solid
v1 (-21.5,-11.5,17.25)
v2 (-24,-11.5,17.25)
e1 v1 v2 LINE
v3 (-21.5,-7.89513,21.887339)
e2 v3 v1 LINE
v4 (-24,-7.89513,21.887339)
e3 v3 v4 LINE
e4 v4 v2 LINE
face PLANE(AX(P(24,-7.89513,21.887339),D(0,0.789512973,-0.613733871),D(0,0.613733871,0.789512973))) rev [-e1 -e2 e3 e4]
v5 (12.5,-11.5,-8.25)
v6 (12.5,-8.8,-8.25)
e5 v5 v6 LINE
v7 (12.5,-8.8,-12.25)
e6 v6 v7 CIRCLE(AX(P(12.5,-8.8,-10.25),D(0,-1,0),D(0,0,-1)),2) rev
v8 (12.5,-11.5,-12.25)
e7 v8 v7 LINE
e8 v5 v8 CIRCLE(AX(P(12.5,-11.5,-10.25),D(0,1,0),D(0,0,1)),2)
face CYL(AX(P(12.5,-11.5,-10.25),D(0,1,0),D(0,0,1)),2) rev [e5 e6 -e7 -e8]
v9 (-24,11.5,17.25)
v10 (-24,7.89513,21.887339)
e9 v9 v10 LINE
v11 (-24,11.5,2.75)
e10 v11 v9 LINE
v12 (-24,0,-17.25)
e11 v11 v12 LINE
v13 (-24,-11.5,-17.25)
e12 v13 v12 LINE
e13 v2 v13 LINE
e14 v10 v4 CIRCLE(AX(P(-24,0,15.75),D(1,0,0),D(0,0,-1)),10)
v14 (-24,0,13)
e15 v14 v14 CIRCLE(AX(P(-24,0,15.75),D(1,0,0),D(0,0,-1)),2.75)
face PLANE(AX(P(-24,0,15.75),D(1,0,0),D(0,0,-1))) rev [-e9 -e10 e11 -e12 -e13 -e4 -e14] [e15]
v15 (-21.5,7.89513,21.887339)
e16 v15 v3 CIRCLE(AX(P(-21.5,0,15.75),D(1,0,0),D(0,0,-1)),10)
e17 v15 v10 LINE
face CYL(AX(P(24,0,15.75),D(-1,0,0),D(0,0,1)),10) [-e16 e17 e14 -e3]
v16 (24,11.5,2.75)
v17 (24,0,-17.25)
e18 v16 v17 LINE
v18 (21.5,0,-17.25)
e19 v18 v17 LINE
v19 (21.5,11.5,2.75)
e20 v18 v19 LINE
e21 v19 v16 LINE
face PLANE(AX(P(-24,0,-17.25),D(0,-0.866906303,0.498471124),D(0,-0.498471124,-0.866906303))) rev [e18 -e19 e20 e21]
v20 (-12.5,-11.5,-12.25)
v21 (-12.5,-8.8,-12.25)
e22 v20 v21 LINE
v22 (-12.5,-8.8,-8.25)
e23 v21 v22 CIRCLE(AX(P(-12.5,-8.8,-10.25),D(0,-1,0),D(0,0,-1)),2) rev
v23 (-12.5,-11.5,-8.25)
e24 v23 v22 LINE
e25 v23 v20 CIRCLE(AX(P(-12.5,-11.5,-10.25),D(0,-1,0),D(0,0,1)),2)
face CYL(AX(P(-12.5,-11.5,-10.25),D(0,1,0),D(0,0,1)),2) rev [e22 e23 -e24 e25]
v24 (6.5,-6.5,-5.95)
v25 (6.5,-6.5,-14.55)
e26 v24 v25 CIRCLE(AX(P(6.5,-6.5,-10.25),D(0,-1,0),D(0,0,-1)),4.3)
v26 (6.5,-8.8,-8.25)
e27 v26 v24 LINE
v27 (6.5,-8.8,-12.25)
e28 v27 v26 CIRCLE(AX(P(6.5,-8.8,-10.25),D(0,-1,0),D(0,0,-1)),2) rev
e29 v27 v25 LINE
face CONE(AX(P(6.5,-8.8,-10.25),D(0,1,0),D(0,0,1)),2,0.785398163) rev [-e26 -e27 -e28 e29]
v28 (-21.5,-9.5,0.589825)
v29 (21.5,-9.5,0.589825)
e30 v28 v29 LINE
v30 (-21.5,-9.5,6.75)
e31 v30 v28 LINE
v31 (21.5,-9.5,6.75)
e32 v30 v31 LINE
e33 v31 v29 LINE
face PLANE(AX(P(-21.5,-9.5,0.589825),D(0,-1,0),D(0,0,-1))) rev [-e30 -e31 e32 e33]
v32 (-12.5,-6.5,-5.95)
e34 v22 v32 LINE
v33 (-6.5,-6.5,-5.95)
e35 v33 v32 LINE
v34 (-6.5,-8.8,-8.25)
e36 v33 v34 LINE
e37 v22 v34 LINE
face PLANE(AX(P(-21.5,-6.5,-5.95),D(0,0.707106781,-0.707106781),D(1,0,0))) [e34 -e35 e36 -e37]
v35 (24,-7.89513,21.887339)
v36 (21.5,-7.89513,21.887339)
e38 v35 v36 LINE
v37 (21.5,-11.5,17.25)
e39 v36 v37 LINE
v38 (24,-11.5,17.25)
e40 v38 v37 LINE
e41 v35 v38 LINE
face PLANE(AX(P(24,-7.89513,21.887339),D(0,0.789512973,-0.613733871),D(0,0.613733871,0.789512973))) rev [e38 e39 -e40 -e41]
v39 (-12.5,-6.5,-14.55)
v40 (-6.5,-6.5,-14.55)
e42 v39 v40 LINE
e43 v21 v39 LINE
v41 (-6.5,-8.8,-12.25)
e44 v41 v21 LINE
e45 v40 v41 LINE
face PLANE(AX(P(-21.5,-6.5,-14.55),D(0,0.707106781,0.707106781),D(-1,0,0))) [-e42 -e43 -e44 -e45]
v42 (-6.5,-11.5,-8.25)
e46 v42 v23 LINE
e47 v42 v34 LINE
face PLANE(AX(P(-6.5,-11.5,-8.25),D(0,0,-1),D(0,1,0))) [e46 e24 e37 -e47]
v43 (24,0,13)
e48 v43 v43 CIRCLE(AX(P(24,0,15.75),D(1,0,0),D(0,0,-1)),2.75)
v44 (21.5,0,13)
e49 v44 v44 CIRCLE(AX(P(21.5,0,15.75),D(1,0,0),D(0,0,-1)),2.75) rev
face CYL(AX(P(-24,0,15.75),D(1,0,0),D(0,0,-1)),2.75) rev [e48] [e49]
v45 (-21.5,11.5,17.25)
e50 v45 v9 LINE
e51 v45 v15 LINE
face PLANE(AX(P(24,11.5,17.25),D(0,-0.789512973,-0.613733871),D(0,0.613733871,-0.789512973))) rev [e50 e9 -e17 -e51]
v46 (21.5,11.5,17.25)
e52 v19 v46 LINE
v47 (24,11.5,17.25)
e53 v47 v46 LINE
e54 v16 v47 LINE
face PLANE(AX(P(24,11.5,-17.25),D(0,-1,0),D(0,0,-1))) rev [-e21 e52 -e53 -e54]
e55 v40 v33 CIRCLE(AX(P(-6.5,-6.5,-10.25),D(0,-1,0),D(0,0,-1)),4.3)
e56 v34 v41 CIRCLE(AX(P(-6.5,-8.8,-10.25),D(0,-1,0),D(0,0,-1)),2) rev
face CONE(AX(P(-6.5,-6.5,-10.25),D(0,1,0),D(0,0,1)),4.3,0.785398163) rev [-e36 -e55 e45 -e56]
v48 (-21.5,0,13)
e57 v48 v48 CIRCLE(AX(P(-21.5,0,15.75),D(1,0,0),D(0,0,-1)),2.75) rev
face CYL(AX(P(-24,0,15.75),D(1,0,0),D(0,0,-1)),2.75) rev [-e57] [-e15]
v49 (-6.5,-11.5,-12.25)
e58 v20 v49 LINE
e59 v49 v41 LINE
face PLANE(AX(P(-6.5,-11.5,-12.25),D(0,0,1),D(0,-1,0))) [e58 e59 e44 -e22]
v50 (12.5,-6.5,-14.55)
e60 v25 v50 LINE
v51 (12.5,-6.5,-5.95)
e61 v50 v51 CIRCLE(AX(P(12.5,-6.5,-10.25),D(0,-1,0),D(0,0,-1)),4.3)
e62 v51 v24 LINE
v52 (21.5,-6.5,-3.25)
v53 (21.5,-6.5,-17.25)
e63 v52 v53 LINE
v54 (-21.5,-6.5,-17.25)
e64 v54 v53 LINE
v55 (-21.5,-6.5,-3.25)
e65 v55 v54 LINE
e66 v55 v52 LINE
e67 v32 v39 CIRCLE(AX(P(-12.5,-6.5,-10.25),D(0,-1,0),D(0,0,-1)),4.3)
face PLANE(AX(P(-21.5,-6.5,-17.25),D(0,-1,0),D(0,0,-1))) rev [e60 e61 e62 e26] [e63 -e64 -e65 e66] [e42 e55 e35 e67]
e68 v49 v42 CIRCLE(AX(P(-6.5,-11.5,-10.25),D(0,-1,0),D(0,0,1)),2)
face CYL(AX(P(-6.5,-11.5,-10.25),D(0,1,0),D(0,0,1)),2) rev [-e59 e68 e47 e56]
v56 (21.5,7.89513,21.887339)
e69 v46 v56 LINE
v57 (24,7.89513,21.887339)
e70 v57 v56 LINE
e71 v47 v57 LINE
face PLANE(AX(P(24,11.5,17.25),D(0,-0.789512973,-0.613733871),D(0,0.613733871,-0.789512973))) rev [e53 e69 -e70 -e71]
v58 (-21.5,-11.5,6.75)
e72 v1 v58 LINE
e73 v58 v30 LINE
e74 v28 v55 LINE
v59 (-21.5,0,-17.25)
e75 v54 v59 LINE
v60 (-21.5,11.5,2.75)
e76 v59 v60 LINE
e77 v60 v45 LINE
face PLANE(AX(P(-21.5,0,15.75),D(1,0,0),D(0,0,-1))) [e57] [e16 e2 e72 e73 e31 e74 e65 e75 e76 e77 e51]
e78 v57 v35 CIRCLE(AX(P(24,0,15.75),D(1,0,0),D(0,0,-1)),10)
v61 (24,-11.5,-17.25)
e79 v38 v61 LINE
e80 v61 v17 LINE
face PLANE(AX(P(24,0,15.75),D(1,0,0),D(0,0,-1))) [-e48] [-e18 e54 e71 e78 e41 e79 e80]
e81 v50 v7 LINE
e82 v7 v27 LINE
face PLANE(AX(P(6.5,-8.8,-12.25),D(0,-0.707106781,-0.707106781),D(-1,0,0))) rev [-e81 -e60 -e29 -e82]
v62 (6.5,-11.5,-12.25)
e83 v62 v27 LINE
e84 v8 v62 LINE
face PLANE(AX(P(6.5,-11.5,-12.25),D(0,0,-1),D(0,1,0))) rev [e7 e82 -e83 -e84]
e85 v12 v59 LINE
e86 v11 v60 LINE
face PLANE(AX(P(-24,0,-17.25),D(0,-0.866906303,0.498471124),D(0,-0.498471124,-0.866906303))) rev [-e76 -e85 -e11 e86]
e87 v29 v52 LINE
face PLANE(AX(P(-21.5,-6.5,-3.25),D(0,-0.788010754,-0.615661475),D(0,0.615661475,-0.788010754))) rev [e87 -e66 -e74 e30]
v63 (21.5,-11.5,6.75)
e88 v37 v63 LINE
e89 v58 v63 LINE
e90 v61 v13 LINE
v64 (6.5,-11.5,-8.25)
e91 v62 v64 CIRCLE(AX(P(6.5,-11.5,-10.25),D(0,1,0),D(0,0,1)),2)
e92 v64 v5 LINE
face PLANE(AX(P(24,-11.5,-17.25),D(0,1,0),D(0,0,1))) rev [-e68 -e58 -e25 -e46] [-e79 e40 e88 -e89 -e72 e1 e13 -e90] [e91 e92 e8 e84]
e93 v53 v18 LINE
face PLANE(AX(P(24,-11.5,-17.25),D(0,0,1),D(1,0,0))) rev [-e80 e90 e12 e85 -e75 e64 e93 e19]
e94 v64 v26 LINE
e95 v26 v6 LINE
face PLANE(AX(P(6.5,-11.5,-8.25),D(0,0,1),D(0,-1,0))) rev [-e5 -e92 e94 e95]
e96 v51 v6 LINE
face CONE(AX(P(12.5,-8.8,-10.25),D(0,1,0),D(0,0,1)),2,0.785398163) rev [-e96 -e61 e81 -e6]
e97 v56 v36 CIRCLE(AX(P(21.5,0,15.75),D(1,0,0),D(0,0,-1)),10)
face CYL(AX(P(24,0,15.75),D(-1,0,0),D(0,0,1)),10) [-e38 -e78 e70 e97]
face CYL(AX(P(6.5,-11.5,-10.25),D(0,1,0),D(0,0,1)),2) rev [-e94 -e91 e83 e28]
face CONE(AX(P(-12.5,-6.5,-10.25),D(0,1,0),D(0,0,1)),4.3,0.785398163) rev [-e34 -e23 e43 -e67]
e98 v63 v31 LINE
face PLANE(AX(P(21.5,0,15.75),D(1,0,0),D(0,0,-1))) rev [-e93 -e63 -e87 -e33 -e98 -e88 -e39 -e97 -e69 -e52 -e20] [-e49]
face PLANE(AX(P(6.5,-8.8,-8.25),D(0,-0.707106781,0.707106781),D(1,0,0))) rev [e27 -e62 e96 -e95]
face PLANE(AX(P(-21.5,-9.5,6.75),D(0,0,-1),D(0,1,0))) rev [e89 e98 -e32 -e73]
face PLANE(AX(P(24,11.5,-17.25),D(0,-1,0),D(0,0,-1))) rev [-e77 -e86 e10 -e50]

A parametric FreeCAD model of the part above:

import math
import FreeCAD as App
import Part
import Sketcher

V = App.Vector
Q = App.Units.Quantity


def edges_at(feature, points):
    """Names of the edges that pass closest to the given points."""
    edges = feature.Shape.Edges
    near = lambda p: min(range(len(edges)), key=lambda i: edges[i].distToShape(Part.Vertex(*p))[0])
    return sorted({f"Edge{near(p) + 1}" for p in points})

doc = App.newDocument("Part")
params = doc.addObject("Spreadsheet::Sheet", "Params")
for row, (alias, value) in enumerate([
    ("sketch1_radius", "10 mm"),
    ("sketch1_width", "23 mm"),
    ("sketch1_height", "34.5 mm"),
    ("pad1_length", "48 mm"),
    ("sketch2_diameter", "5.5 mm"),
    ("sketch2_height", "20 mm"),
    ("sketch2_width", "11.5 mm"),
    ("pocket1_length", "48 mm"),
    ("sketch3_radius", "10 mm"),
    ("sketch3_width", "2 mm"),
    ("sketch3_height", "14 mm"),
    ("sketch3_width2", "6.5 mm"),
    ("sketch3_height2", "14.5 mm"),
    ("pocket2_length", "43 mm"),
    ("sketch4_radius", "2 mm"),
    ("sketch4_width", "6 mm"),
    ("chamfer_size", "2.3 mm"),
    ("chamfer2_size", "2.3 mm"),
], start=1):
    params.set(f"A{row}", alias)
    params.set(f"B{row}", "=" + value)
    params.setAlias(f"B{row}", alias)

body = doc.addObject("PartDesign::Body", "Body")

sketch1 = doc.addObject("Sketcher::SketchObject", "Sketch")
body.addObject(sketch1)
sketch1.AttachmentSupport = (doc.YZ_Plane, [""])
sketch1.MapMode = "FlatFace"
sketch1.addGeometry(Part.LineSegment(V(12, 17, 0), V(8, 22, 0)), False)
sketch1.addGeometry(Part.ArcOfCircle(Part.Circle(V(0, 16, 0), V(0, 0, 1), 10), math.radians(38), math.radians(142)), False)
sketch1.addGeometry(Part.LineSegment(V(-8, 22, 0), V(-12, 17, 0)), False)
sketch1.addGeometry(Part.LineSegment(V(-12, 17, 0), V(-12, -17, 0)), False)
sketch1.addGeometry(Part.LineSegment(V(-12, -17, 0), V(12, -17, 0)), False)
sketch1.addGeometry(Part.LineSegment(V(12, -17, 0), V(12, 17, 0)), False)
sketch1.addConstraint(Sketcher.Constraint("Tangent", 0, 2, 1, 1))
sketch1.addConstraint(Sketcher.Constraint("Tangent", 1, 2, 2, 1))
sketch1.addConstraint(Sketcher.Constraint("Coincident", 2, 2, 3, 1))
sketch1.addConstraint(Sketcher.Constraint("Coincident", 3, 2, 4, 1))
sketch1.addConstraint(Sketcher.Constraint("Coincident", 4, 2, 5, 1))
sketch1.addConstraint(Sketcher.Constraint("Coincident", 5, 2, 0, 1))
sketch1.addConstraint(Sketcher.Constraint("Vertical", 3))
sketch1.addConstraint(Sketcher.Constraint("Horizontal", 4))
sketch1.addConstraint(Sketcher.Constraint("Vertical", 5))
sketch1.addConstraint(Sketcher.Constraint("Symmetric", 2, 2, 4, 2, -1, 1))
sketch1.addConstraint(Sketcher.Constraint("Symmetric", 0, 2, 1, 2, -2))
sketch1.addConstraint(Sketcher.Constraint("Radius", 1, Q("10 mm")))
sketch1.addConstraint(Sketcher.Constraint("DistanceX", 4, 1, 4, 2, Q("23 mm")))
sketch1.addConstraint(Sketcher.Constraint("DistanceY", 3, 2, 3, 1, Q("34.5 mm")))
sketch1.addConstraint(Sketcher.Constraint("DistanceY", 3, 2, 1, 3, Q("33 mm")))
sketch1.setExpression("Constraints[11]", "Params.sketch1_radius")
sketch1.setExpression("Constraints[12]", "Params.sketch1_width")
sketch1.setExpression("Constraints[13]", "Params.sketch1_height")
pad1 = doc.addObject("PartDesign::Pad", "Pad")
body.addObject(pad1)
pad1.Profile = sketch1
pad1.setExpression("Length", "Params.pad1_length")
pad1.Midplane = True

sketch2 = doc.addObject("Sketcher::SketchObject", "Sketch001")
body.addObject(sketch2)
sketch2.AttachmentSupport = (doc.YZ_Plane, [""])
sketch2.MapMode = "FlatFace"
sketch2.AttachmentOffset = App.Placement(V(0, 0, 24), App.Rotation())
sketch2.addGeometry(Part.Circle(V(0, 15.8, 0), V(0, 0, 1), 2.8), False)
sketch2.addGeometry(Part.LineSegment(V(11.5, 2.8, 0), V(0, -17.2, 0)), False)
sketch2.addGeometry(Part.LineSegment(V(0, -17.2, 0), V(11.5, -17.2, 0)), False)
sketch2.addGeometry(Part.LineSegment(V(11.5, -17.2, 0), V(11.5, 2.8, 0)), False)
sketch2.addConstraint(Sketcher.Constraint("Coincident", 1, 2, 2, 1))
sketch2.addConstraint(Sketcher.Constraint("Coincident", 2, 2, 3, 1))
sketch2.addConstraint(Sketcher.Constraint("Coincident", 3, 2, 1, 1))
sketch2.addConstraint(Sketcher.Constraint("Horizontal", 2))
sketch2.addConstraint(Sketcher.Constraint("Vertical", 3))
sketch2.addConstraint(Sketcher.Constraint("PointOnObject", 0, 3, -2))
sketch2.addConstraint(Sketcher.Constraint("PointOnObject", 1, 2, -2))
sketch2.addConstraint(Sketcher.Constraint("Diameter", 0, Q("5.5 mm")))
sketch2.addConstraint(Sketcher.Constraint("DistanceY", 3, 1, 3, 2, Q("20 mm")))
sketch2.addConstraint(Sketcher.Constraint("DistanceX", 2, 1, 2, 2, Q("11.5 mm")))
sketch2.addConstraint(Sketcher.Constraint("DistanceY", 1, 2, 0, 3, Q("33 mm")))
sketch2.addConstraint(Sketcher.Constraint("DistanceY", -1, 1, 0, 3, Q("15.75 mm")))
sketch2.setExpression("Constraints[7]", "Params.sketch2_diameter")
sketch2.setExpression("Constraints[8]", "Params.sketch2_height")
sketch2.setExpression("Constraints[9]", "Params.sketch2_width")
pocket1 = doc.addObject("PartDesign::Pocket", "Pocket")
body.addObject(pocket1)
pocket1.Profile = sketch2
pocket1.setExpression("Length", "Params.pocket1_length")

sketch3 = doc.addObject("Sketcher::SketchObject", "Sketch002")
body.addObject(sketch3)
sketch3.AttachmentSupport = (doc.YZ_Plane, [""])
sketch3.MapMode = "FlatFace"
sketch3.addGeometry(Part.LineSegment(V(-6.5, -17.2, 0), V(0, -17.2, 0)), False)
sketch3.addGeometry(Part.LineSegment(V(0, -17.2, 0), V(11.5, 2.8, 0)), False)
sketch3.addGeometry(Part.LineSegment(V(11.5, 2.8, 0), V(11.5, 17.2, 0)), False)
sketch3.addGeometry(Part.LineSegment(V(11.5, 17.2, 0), V(7.9, 21.9, 0)), False)
sketch3.addGeometry(Part.ArcOfCircle(Part.Circle(V(0, 15.8, 0), V(0, 0, 1), 10), math.radians(38), math.radians(142)), False)
sketch3.addGeometry(Part.LineSegment(V(-7.9, 21.9, 0), V(-11.5, 17.2, 0)), False)
sketch3.addGeometry(Part.LineSegment(V(-11.5, 17.2, 0), V(-11.5, 6.8, 0)), False)
sketch3.addGeometry(Part.LineSegment(V(-11.5, 6.8, 0), V(-9.5, 6.8, 0)), False)
sketch3.addGeometry(Part.LineSegment(V(-9.5, 6.8, 0), V(-9.5, 0.6, 0)), False)
sketch3.addGeometry(Part.LineSegment(V(-9.5, 0.6, 0), V(-6.5, -3.2, 0)), False)
sketch3.addGeometry(Part.LineSegment(V(-6.5, -3.2, 0), V(-6.5, -17.2, 0)), False)
sketch3.addConstraint(Sketcher.Constraint("Coincident", 0, 2, 1, 1))
sketch3.addConstraint(Sketcher.Constraint("Coincident", 1, 2, 2, 1))
sketch3.addConstraint(Sketcher.Constraint("Coincident", 2, 2, 3, 1))
sketch3.addConstraint(Sketcher.Constraint("Tangent", 3, 2, 4, 1))
sketch3.addConstraint(Sketcher.Constraint("Tangent", 4, 2, 5, 1))
sketch3.addConstraint(Sketcher.Constraint("Coincident", 5, 2, 6, 1))
sketch3.addConstraint(Sketcher.Constraint("Coincident", 6, 2, 7, 1))
sketch3.addConstraint(Sketcher.Constraint("Coincident", 7, 2, 8, 1))
sketch3.addConstraint(Sketcher.Constraint("Coincident", 8, 2, 9, 1))
sketch3.addConstraint(Sketcher.Constraint("Coincident", 9, 2, 10, 1))
sketch3.addConstraint(Sketcher.Constraint("Coincident", 10, 2, 0, 1))
sketch3.addConstraint(Sketcher.Constraint("Horizontal", 0))
sketch3.addConstraint(Sketcher.Constraint("Vertical", 2))
sketch3.addConstraint(Sketcher.Constraint("Vertical", 6))
sketch3.addConstraint(Sketcher.Constraint("Horizontal", 7))
sketch3.addConstraint(Sketcher.Constraint("Vertical", 8))
sketch3.addConstraint(Sketcher.Constraint("Vertical", 10))
sketch3.addConstraint(Sketcher.Constraint("Symmetric", 3, 2, 4, 2, -2))
sketch3.addConstraint(Sketcher.Constraint("PointOnObject", 0, 2, -2))
sketch3.addConstraint(Sketcher.Constraint("Horizontal", 2, 2, 5, 2))
sketch3.addConstraint(Sketcher.Constraint("Radius", 4, Q("10 mm")))
sketch3.addConstraint(Sketcher.Constraint("DistanceX", 7, 1, 7, 2, Q("2 mm")))
sketch3.addConstraint(Sketcher.Constraint("DistanceY", 10, 2, 10, 1, Q("14 mm")))
sketch3.addConstraint(Sketcher.Constraint("Angle", 9, Q("-52 deg")))
sketch3.addConstraint(Sketcher.Constraint("DistanceX", 0, 1, 0, 2, Q("6.5 mm")))
sketch3.addConstraint(Sketcher.Constraint("DistanceY", 2, 1, 2, 2, Q("14.5 mm")))
sketch3.addConstraint(Sketcher.Constraint("DistanceY", 6, 2, 6, 1, Q("10.5 mm")))
sketch3.addConstraint(Sketcher.Constraint("DistanceY", 0, 2, 4, 3, Q("33 mm")))
sketch3.addConstraint(Sketcher.Constraint("DistanceY", 1, 2, 4, 3, Q("13 mm")))
sketch3.addConstraint(Sketcher.Constraint("DistanceX", 5, 2, 2, 2, Q("23 mm")))
sketch3.addConstraint(Sketcher.Constraint("DistanceY", -1, 1, 4, 3, Q("15.75 mm")))
sketch3.setExpression("Constraints[20]", "Params.sketch3_radius")
sketch3.setExpression("Constraints[21]", "Params.sketch3_width")
sketch3.setExpression("Constraints[22]", "Params.sketch3_height")
sketch3.setExpression("Constraints[24]", "Params.sketch3_width2")
sketch3.setExpression("Constraints[25]", "Params.sketch3_height2")
pocket2 = doc.addObject("PartDesign::Pocket", "Pocket001")
body.addObject(pocket2)
pocket2.Profile = sketch3
pocket2.setExpression("Length", "Params.pocket2_length")
pocket2.Midplane = True

sketch4 = doc.addObject("Sketcher::SketchObject", "Sketch003")
body.addObject(sketch4)
sketch4.AttachmentSupport = (doc.XZ_Plane, [""])
sketch4.MapMode = "FlatFace"
sketch4.AttachmentOffset = App.Placement(V(0, 0, 6.5), App.Rotation())
sketch4.addGeometry(Part.LineSegment(V(12.5, -12.2, 0), V(6.5, -12.2, 0)), False)
sketch4.addGeometry(Part.ArcOfCircle(Part.Circle(V(6.5, -10.2, 0), V(0, 0, 1), 2), math.radians(90), math.radians(270)), False)
sketch4.addGeometry(Part.LineSegment(V(6.5, -8.2, 0), V(12.5, -8.2, 0)), False)
sketch4.addGeometry(Part.ArcOfCircle(Part.Circle(V(12.5, -10.2, 0), V(0, 0, 1), 2), math.radians(-90), math.radians(90)), False)
sketch4.addConstraint(Sketcher.Constraint("Tangent", 0, 2, 1, 2))
sketch4.addConstraint(Sketcher.Constraint("Tangent", 1, 1, 2, 1))
sketch4.addConstraint(Sketcher.Constraint("Tangent", 2, 2, 3, 2))
sketch4.addConstraint(Sketcher.Constraint("Tangent", 3, 1, 0, 1))
sketch4.addConstraint(Sketcher.Constraint("Horizontal", 0))
sketch4.addConstraint(Sketcher.Constraint("Horizontal", 2))
sketch4.addConstraint(Sketcher.Constraint("Radius", 1, Q("2 mm")))
sketch4.addConstraint(Sketcher.Constraint("DistanceX", 0, 2, 0, 1, Q("6 mm")))
sketch4.addConstraint(Sketcher.Constraint("DistanceX", -1, 1, 1, 3, Q("6.5 mm")))
sketch4.addConstraint(Sketcher.Constraint("DistanceY", 1, 3, -1, 1, Q("10.25 mm")))
sketch4.setExpression("Constraints[6]", "Params.sketch4_radius")
sketch4.setExpression("Constraints[7]", "Params.sketch4_width")
pocket3 = doc.addObject("PartDesign::Pocket", "Pocket002")
body.addObject(pocket3)
pocket3.Profile = sketch4
pocket3.Type = "ThroughAll"
pocket3.Reversed = True
doc.recompute()

chamfer = doc.addObject("PartDesign::Chamfer", "Chamfer")
body.addObject(chamfer)
chamfer.Base = (pocket3, edges_at(pocket3, [
    (4.5, -6.5, -10.25),
    (9.5, -6.5, -8.25),
    (14.5, -6.5, -10.25),
    (9.5, -6.5, -12.25),
]))
chamfer.setExpression("Size", "Params.chamfer_size")
doc.recompute()

mirrored = doc.addObject("PartDesign::Mirrored", "Mirrored")
body.addObject(mirrored)
mirrored.Originals = [pocket3]
mirrored.MirrorPlane = (doc.YZ_Plane, [""])
body.Tip = mirrored
doc.recompute()

chamfer2 = doc.addObject("PartDesign::Chamfer", "Chamfer001")
body.addObject(chamfer2)
chamfer2.Base = (mirrored, edges_at(mirrored, [
    (-4.5, -6.5, -10.25),
    (-9.5, -6.5, -8.25),
    (-14.5, -6.5, -10.25),
    (-9.5, -6.5, -12.25),
]))
chamfer2.setExpression("Size", "Params.chamfer2_size")

doc.recompute()
